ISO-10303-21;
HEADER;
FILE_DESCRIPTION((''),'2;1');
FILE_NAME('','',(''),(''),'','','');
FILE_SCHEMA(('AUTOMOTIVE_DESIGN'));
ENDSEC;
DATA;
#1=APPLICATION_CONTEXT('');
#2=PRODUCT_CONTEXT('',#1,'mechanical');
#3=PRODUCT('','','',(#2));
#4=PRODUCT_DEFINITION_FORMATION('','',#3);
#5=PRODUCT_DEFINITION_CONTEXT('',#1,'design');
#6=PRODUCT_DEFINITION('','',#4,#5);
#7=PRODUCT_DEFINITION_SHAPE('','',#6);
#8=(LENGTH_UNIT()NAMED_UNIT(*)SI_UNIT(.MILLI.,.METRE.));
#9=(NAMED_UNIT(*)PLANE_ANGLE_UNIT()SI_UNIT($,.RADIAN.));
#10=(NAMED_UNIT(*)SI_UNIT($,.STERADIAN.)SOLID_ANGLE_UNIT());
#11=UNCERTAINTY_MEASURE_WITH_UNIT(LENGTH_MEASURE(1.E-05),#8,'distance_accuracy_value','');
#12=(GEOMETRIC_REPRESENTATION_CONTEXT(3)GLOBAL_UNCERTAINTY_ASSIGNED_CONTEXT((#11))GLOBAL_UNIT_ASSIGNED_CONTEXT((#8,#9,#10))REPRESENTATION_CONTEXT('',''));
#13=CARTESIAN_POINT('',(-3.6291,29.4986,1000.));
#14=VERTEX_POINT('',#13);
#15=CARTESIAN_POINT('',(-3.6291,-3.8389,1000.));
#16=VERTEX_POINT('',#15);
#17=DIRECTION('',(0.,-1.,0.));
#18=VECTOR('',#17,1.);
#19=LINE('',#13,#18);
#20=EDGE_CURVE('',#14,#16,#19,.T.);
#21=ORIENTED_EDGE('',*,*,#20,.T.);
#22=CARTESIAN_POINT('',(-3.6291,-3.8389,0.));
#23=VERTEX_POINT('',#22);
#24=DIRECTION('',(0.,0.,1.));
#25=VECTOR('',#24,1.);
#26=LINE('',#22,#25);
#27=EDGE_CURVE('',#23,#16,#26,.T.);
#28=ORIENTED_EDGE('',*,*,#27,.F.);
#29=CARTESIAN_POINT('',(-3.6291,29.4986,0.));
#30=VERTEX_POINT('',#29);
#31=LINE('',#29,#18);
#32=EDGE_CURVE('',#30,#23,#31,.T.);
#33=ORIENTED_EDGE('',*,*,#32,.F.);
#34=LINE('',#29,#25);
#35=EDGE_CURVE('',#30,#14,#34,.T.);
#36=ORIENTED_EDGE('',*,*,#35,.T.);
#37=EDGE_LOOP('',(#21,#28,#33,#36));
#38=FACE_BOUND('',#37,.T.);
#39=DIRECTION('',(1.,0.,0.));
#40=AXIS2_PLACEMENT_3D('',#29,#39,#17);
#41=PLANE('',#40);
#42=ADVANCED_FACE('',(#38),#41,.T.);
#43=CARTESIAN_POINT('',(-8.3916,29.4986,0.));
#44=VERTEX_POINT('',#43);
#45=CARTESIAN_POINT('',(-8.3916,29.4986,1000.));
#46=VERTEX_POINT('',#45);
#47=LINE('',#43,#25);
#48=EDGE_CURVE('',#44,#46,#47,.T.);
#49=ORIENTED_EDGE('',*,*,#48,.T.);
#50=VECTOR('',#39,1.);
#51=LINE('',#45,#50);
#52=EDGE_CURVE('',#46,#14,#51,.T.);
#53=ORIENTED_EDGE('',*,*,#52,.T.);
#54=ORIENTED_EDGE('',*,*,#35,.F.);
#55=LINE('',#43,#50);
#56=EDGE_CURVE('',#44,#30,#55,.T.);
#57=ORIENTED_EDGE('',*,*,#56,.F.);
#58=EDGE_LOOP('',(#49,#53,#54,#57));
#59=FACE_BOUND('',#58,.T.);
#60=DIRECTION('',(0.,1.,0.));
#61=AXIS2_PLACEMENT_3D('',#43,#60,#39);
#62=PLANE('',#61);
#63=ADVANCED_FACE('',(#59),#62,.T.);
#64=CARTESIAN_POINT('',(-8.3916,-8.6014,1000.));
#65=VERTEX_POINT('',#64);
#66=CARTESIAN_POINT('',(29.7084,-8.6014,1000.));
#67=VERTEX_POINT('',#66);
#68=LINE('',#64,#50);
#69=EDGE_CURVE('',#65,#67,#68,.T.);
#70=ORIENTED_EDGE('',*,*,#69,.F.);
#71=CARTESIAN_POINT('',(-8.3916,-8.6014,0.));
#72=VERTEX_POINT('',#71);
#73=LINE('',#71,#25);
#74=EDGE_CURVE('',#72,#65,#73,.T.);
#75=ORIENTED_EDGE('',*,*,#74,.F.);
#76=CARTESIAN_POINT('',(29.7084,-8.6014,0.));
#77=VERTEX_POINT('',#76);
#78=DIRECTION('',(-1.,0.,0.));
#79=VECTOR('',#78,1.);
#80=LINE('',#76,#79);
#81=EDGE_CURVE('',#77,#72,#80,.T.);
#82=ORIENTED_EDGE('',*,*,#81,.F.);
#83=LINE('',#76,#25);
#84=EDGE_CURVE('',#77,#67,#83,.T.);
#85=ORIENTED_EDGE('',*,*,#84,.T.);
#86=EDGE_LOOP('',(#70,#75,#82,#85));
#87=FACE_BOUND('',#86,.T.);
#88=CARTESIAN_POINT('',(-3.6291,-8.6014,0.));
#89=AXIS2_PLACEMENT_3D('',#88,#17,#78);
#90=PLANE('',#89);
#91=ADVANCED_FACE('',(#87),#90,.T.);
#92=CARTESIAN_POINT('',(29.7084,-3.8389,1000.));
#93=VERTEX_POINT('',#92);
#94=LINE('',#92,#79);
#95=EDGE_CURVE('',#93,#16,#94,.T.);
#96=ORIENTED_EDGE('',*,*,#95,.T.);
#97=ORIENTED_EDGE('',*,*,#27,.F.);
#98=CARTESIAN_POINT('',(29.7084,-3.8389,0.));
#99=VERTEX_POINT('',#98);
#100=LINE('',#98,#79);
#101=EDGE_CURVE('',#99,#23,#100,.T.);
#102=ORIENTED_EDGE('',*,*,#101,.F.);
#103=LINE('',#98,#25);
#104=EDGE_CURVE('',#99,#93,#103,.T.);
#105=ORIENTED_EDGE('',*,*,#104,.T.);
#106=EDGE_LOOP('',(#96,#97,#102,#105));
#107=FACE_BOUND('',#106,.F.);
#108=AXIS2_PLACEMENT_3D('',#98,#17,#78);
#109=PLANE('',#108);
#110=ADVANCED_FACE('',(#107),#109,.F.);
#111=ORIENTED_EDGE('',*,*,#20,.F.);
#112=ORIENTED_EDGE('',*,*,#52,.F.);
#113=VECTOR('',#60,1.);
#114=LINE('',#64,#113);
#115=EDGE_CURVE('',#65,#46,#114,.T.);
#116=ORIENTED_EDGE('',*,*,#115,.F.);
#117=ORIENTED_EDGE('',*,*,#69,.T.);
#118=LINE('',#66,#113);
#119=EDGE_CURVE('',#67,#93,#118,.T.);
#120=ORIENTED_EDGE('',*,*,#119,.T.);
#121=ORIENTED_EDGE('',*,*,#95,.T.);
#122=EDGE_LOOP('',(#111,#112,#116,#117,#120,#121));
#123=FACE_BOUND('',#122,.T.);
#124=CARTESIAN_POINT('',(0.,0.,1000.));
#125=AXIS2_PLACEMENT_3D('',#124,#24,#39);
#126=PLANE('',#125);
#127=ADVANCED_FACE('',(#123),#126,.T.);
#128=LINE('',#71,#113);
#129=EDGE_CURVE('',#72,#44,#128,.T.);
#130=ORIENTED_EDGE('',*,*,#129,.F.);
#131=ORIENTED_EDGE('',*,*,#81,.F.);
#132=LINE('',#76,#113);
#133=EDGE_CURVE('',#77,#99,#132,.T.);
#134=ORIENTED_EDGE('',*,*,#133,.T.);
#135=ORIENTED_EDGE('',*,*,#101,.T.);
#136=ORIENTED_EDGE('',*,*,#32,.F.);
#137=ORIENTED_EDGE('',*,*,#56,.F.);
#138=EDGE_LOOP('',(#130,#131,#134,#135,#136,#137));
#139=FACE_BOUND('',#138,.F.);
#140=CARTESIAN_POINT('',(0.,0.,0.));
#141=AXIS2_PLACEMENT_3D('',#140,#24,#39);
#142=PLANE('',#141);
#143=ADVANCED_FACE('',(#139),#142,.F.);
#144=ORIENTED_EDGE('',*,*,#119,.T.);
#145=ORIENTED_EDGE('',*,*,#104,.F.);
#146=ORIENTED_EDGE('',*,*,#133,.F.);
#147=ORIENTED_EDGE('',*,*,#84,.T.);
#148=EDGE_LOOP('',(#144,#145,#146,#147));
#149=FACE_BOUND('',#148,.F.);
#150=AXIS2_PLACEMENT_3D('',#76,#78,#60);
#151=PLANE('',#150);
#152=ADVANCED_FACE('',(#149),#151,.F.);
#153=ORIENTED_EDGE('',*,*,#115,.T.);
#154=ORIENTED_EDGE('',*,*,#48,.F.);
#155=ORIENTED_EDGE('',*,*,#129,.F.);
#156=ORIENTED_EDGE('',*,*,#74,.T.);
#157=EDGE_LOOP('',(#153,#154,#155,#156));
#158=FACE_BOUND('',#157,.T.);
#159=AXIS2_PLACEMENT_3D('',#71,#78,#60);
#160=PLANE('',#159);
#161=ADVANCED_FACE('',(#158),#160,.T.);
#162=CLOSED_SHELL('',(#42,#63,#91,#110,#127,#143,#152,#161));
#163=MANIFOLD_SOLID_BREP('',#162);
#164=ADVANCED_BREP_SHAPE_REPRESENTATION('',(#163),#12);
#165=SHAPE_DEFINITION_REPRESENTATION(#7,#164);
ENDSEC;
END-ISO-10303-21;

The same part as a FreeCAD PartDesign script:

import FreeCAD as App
import Part
import Sketcher

V = App.Vector
Q = App.Units.Quantity


def add_polygon(sketch, points):
    """Adds a closed chain of lines whose ends are joined by coincident constraints."""
    first, n = sketch.GeometryCount, len(points)
    for a, b in zip(points, points[1:] + points[:1]):
        sketch.addGeometry(Part.LineSegment(App.Vector(*a, 0), App.Vector(*b, 0)), False)
    for i in range(n):
        sketch.addConstraint(Sketcher.Constraint("Coincident", first + i, 2, first + (i + 1) % n, 1))

doc = App.newDocument("Part")
body = doc.addObject("PartDesign::Body", "Body")

# Sketch on XY plane
sketch1 = body.newObject("Sketcher::SketchObject", "Sketch")
sketch1.AttachmentSupport = (doc.getObject("XY_Plane"), [""])
sketch1.MapMode = "FlatFace"
add_polygon(sketch1, [(-3.6, 29.5), (-8.4, 29.5), (-8.4, -8.6), (29.7, -8.6), (29.7, -3.8), (-3.6, -3.8)])  # lines 0-5
sketch1.addConstraint(Sketcher.Constraint("Horizontal", 0))
sketch1.addConstraint(Sketcher.Constraint("Vertical", 1))
sketch1.addConstraint(Sketcher.Constraint("Horizontal", 2))
sketch1.addConstraint(Sketcher.Constraint("Vertical", 3))
sketch1.addConstraint(Sketcher.Constraint("Horizontal", 4))
sketch1.addConstraint(Sketcher.Constraint("Vertical", 5))
sketch1.addConstraint(Sketcher.Constraint("Equal", 2, 1))
sketch1.addConstraint(Sketcher.Constraint("Equal", 0, 3))
sketch1.addConstraint(Sketcher.Constraint("DistanceX", 2, 1, 2, 2, Q("1.5 in")))
sketch1.addConstraint(Sketcher.Constraint("DistanceX", 0, 2, 0, 1, Q("0.1875 in")))
sketch1.addConstraint(Sketcher.Constraint("DistanceX", 0, 2, -1, 1, Q("8.3916 mm")))
sketch1.addConstraint(Sketcher.Constraint("DistanceY", -1, 1, 0, 2, Q("29.4986 mm")))
pad1 = body.newObject("PartDesign::Pad", "Pad")
pad1.Profile = sketch1
pad1.Length = 1000

doc.recompute()
